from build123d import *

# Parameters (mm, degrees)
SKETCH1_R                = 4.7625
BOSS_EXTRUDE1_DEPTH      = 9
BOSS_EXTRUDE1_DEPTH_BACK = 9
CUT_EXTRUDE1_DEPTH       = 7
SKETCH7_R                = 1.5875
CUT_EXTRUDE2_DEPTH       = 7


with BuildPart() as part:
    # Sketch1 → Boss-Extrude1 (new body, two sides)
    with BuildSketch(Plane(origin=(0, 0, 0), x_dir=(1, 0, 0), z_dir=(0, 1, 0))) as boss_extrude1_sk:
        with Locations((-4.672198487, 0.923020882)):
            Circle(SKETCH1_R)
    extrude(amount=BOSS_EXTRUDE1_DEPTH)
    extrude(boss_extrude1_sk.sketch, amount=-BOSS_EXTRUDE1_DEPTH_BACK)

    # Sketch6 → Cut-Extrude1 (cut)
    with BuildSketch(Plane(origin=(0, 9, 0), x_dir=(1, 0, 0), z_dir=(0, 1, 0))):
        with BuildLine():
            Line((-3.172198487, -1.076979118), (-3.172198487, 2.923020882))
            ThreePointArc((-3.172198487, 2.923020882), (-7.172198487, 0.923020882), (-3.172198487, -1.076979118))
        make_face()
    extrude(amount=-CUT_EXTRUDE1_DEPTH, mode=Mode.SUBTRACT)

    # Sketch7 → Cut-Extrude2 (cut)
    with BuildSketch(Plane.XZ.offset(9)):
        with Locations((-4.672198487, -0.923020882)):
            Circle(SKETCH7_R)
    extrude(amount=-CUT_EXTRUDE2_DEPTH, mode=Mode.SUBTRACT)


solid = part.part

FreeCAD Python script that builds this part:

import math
import FreeCAD as App
import Part
import Sketcher

V = App.Vector

doc = App.newDocument("Part")
params = doc.addObject("Spreadsheet::Sheet", "Params")
for row, (alias, value) in enumerate([
    ("pad1_length", "9 mm"),
    ("pad1_length2", "9 mm"),
    ("sketch2_radius", "2.5 mm"),
    ("sketch2_height", "4 mm"),
    ("pocket1_length", "7 mm"),
    ("pocket2_length", "7 mm"),
], start=1):
    params.set(f"A{row}", alias)
    params.set(f"B{row}", "=" + value)
    params.setAlias(f"B{row}", alias)

body = doc.addObject("PartDesign::Body", "Body")

# Sketch on XZ plane
sketch1 = doc.addObject("Sketcher::SketchObject", "Sketch")
body.addObject(sketch1)
sketch1.AttachmentSupport = (doc.XZ_Plane, [""])
sketch1.MapMode = "FlatFace"
sketch1.addGeometry(Part.Circle(V(-4.672198, -0.923021, 0), V(0, 0, 1), 4.7625), False)
sketch1.addConstraint([
    Sketcher.Constraint("Diameter", 0, 9.525),
    Sketcher.Constraint("DistanceX", 0, 3, -1, 1, 4.672198),
    Sketcher.Constraint("DistanceY", 0, 3, -1, 1, 0.923021),
])
pad1 = doc.addObject("PartDesign::Pad", "Pad")
body.addObject(pad1)
pad1.Profile = sketch1
pad1.Type = "TwoLengths"
pad1.setExpression("Length", "Params.pad1_length")
pad1.setExpression("Length2", "Params.pad1_length2")
pad1.Reversed = True

# Sketch on XZ plane
sketch2 = doc.addObject("Sketcher::SketchObject", "Sketch001")
body.addObject(sketch2)
sketch2.AttachmentSupport = (doc.XZ_Plane, [""])
sketch2.MapMode = "FlatFace"
sketch2.AttachmentOffset = App.Placement(V(0, 0, -9), App.Rotation())
sketch2.addGeometry([
    Part.LineSegment(V(-3.172198, 1.076979, 0), V(-3.172198, -2.923021, 0)),
    Part.ArcOfCircle(Part.Circle(V(-4.672198, -0.923021, 0), V(0, 0, 1), 2.5), math.radians(53.130102), math.radians(306.869898)),
], False)
sketch2.addConstraint([
    Sketcher.Constraint("Coincident", 0, 1, 1, 1),
    Sketcher.Constraint("Coincident", 1, 2, 0, 2),
    Sketcher.Constraint("Vertical", 0),
    Sketcher.Constraint("Radius", 1, 2.5),
    Sketcher.Constraint("DistanceY", 0, 2, 0, 1, 4.0),
    Sketcher.Constraint("DistanceX", 1, 3, -1, 1, 4.672198),
    Sketcher.Constraint("DistanceY", 1, 3, -1, 1, 0.923021),
])
sketch2.setExpression("Constraints[3]", "Params.sketch2_radius")
sketch2.setExpression("Constraints[4]", "Params.sketch2_height")
pocket1 = doc.addObject("PartDesign::Pocket", "Pocket")
body.addObject(pocket1)
pocket1.Profile = sketch2
pocket1.setExpression("Length", "Params.pocket1_length")
pocket1.Reversed = True

# Sketch on XZ plane
sketch3 = doc.addObject("Sketcher::SketchObject", "Sketch002")
body.addObject(sketch3)
sketch3.AttachmentSupport = (doc.XZ_Plane, [""])
sketch3.MapMode = "FlatFace"
sketch3.AttachmentOffset = App.Placement(V(0, 0, 9), App.Rotation())
sketch3.addGeometry(Part.Circle(V(-4.672198, -0.923021, 0), V(0, 0, 1), 1.5875), False)
sketch3.addConstraint([
    Sketcher.Constraint("Diameter", 0, 3.175),
    Sketcher.Constraint("DistanceX", 0, 3, -1, 1, 4.672198),
    Sketcher.Constraint("DistanceY", 0, 3, -1, 1, 0.923021),
])
pocket2 = doc.addObject("PartDesign::Pocket", "Pocket001")
body.addObject(pocket2)
pocket2.Profile = sketch3
pocket2.setExpression("Length", "Params.pocket2_length")

doc.recompute()
